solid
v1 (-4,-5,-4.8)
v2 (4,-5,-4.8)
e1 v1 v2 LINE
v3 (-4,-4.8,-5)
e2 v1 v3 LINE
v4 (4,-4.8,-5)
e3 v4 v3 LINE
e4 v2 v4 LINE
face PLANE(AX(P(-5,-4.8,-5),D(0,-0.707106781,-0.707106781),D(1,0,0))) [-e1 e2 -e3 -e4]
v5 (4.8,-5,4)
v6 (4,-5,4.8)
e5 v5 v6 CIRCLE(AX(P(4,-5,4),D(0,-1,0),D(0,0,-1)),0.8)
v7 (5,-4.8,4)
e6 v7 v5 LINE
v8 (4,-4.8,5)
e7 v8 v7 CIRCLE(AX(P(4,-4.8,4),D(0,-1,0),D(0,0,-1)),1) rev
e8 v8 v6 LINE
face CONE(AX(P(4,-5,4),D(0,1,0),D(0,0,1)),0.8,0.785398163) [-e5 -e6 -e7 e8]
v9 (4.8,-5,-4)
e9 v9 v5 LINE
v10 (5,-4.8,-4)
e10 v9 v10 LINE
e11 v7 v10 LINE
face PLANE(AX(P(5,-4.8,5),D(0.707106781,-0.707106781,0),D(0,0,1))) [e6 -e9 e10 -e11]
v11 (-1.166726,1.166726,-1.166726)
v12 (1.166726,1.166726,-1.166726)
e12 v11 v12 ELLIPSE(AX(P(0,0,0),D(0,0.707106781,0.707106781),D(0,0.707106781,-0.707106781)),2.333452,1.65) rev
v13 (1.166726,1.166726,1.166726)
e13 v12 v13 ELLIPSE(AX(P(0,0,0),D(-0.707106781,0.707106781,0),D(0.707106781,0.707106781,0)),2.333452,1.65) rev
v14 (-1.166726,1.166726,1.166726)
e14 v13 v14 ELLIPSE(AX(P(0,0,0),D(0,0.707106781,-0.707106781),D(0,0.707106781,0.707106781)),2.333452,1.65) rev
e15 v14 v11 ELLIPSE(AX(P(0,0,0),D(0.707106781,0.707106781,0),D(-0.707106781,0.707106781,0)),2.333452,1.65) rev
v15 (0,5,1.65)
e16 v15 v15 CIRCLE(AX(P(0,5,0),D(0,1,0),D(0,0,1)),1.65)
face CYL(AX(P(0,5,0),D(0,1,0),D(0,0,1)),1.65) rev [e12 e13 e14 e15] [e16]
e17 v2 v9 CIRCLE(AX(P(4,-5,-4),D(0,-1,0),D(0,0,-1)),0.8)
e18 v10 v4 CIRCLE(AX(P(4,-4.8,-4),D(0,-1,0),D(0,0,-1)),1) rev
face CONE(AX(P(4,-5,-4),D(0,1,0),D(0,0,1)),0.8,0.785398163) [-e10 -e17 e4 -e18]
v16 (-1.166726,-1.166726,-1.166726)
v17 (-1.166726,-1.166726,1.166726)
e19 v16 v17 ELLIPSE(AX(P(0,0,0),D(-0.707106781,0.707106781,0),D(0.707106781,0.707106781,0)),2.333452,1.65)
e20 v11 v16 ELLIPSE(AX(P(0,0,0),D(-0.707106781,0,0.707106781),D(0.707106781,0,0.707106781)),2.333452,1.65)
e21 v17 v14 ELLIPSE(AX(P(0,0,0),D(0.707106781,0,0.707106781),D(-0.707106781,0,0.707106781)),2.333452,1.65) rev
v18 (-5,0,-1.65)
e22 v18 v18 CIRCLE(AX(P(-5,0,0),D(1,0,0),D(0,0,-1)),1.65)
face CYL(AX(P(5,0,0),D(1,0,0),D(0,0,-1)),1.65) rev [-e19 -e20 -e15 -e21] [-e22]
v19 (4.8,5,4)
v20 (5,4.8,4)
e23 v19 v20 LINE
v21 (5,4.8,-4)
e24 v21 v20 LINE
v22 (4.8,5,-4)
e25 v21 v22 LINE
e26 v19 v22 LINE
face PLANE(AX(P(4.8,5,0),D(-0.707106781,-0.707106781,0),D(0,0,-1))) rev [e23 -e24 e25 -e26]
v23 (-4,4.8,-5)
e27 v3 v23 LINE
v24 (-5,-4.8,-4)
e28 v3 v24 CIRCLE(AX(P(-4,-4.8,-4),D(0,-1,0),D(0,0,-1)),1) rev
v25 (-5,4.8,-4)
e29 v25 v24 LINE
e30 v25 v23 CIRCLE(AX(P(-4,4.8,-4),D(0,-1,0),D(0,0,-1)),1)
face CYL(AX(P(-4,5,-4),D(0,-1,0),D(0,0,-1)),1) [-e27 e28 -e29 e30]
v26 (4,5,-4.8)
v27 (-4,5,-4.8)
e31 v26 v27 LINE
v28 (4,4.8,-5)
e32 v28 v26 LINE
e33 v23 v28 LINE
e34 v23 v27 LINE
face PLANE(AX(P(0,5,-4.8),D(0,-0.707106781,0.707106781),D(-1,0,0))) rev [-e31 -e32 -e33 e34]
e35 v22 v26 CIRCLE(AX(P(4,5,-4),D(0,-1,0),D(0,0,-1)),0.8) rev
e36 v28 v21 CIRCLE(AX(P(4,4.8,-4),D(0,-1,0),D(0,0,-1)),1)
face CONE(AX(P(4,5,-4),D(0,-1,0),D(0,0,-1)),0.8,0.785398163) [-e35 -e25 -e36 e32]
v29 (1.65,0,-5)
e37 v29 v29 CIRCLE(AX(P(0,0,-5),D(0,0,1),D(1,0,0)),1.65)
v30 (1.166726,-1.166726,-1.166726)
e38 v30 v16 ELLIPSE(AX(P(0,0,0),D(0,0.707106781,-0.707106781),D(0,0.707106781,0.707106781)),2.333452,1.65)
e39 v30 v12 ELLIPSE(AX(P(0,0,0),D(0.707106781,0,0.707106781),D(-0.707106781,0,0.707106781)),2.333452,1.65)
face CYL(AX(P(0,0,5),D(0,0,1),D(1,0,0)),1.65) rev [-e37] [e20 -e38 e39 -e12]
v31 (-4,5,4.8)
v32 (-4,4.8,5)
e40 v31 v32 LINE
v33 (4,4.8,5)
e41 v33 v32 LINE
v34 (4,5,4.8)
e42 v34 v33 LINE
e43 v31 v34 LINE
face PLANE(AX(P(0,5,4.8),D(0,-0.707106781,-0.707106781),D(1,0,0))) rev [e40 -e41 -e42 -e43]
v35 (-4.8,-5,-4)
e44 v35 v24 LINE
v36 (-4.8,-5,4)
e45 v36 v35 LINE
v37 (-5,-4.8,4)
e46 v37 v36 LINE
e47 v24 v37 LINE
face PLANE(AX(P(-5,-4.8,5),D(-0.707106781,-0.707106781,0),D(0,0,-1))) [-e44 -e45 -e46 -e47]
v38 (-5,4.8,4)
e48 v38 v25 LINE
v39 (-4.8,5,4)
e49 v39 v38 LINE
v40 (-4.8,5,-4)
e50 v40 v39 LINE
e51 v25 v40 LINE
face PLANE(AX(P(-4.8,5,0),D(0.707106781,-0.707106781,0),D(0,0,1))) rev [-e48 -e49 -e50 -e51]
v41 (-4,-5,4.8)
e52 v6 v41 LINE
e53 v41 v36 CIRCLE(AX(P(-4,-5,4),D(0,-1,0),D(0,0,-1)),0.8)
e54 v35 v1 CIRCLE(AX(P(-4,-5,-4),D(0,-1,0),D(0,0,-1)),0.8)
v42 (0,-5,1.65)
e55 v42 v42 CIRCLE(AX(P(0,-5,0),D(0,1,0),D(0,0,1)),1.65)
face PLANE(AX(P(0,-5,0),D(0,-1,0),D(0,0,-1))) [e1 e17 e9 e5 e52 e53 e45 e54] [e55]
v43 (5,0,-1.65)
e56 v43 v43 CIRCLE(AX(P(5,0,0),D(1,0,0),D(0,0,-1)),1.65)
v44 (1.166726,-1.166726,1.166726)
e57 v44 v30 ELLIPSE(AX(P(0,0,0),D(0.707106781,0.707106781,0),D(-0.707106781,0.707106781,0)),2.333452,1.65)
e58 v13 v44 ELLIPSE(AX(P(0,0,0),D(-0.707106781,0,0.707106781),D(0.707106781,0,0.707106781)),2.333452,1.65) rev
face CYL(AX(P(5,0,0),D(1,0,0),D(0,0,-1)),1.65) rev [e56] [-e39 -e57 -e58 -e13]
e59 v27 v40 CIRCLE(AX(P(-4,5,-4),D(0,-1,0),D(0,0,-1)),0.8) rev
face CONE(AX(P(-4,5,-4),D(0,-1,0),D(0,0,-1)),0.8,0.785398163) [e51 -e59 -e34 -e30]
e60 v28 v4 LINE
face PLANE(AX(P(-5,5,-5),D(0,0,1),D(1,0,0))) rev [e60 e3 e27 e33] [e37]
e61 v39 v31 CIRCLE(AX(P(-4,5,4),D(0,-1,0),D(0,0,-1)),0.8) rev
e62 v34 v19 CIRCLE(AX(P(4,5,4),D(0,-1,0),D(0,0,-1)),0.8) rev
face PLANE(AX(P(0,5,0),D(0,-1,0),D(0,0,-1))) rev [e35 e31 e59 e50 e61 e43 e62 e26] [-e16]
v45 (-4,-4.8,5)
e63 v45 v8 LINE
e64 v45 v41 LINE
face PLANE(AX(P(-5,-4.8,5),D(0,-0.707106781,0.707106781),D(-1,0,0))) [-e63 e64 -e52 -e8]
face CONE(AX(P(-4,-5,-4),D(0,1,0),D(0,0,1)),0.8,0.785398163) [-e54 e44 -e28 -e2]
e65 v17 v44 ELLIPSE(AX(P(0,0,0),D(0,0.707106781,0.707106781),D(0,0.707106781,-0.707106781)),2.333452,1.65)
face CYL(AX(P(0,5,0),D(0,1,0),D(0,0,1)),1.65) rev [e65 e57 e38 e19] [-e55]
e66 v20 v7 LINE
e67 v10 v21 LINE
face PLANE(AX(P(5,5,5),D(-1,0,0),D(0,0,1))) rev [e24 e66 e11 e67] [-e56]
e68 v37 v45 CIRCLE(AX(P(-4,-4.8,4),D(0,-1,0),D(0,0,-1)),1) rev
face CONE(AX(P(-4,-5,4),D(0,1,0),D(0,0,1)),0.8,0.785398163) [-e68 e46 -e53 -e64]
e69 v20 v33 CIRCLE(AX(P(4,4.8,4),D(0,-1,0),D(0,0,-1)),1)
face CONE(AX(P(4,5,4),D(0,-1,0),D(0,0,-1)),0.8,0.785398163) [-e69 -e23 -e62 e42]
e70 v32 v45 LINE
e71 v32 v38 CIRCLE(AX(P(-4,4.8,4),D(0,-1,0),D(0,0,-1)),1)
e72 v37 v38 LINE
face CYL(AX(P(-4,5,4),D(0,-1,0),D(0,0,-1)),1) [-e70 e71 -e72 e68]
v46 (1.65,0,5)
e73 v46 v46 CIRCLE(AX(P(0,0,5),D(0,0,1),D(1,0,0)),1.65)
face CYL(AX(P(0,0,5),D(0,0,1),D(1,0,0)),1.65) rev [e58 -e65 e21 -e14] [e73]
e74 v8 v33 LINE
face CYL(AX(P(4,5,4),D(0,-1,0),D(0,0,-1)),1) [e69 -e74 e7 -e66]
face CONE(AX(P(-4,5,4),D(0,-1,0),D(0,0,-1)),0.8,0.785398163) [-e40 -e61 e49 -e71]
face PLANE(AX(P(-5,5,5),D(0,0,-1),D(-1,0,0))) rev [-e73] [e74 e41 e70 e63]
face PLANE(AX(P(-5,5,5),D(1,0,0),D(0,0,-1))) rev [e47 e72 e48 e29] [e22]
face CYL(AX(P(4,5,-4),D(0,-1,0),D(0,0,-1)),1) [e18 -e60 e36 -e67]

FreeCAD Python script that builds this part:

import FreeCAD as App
import Part
import Sketcher
from FreeCAD import Vector


def edges_at(feature, points):
    """Names of the edges that pass closest to the given points."""
    edges = feature.Shape.Edges
    near = lambda p: min(range(len(edges)), key=lambda i: edges[i].distToShape(Part.Vertex(*p))[0])
    return sorted({f"Edge{near(p) + 1}" for p in points})


def add_polygon(sketch, points):
    """Adds a closed chain of lines whose ends are joined by coincident constraints."""
    first, n = sketch.GeometryCount, len(points)
    for a, b in zip(points, points[1:] + points[:1]):
        sketch.addGeometry(Part.LineSegment(App.Vector(*a, 0), App.Vector(*b, 0)), False)
    for i in range(n):
        sketch.addConstraint(Sketcher.Constraint("Coincident", first + i, 2, first + (i + 1) % n, 1))

doc = App.newDocument("Part")
body = doc.addObject("PartDesign::Body", "Body")

sketch1 = doc.addObject("Sketcher::SketchObject", "Sketch")
body.addObject(sketch1)
sketch1.AttachmentSupport = (doc.XZ_Plane, [""])
sketch1.MapMode = "FlatFace"
add_polygon(sketch1, [(-5, -5), (-5, 5), (5, 5), (5, -5)])
sketch1.addConstraint([
    Sketcher.Constraint("Vertical", 0),
    Sketcher.Constraint("Horizontal", 1),
    Sketcher.Constraint("Vertical", 2),
    Sketcher.Constraint("Horizontal", 3),
    Sketcher.Constraint("Symmetric", 0, 2, 2, 2, -1, 1),
    Sketcher.Constraint("Equal", 3, 0),
    Sketcher.Constraint("DistanceX", 1, 1, 1, 2, 10.0),
])
pad1 = doc.addObject("PartDesign::Pad", "Pad")
body.addObject(pad1)
pad1.Profile = sketch1
pad1.Length = 10
pad1.Midplane = True

sketch2 = doc.addObject("Sketcher::SketchObject", "Sketch001")
body.addObject(sketch2)
sketch2.AttachmentSupport = (doc.XZ_Plane, [""])
sketch2.MapMode = "FlatFace"
sketch2.AttachmentOffset = App.Placement(Vector(0, 0, -5), App.Rotation())
sketch2.addGeometry(Part.Circle(Vector(0, 0, 0), Vector(0, 0, 1), 1.65), False)
sketch2.addConstraint([
    Sketcher.Constraint("Coincident", 0, 3, -1, 1),
    Sketcher.Constraint("Diameter", 0, 3.3),
])
doc.recompute()
hole = doc.addObject("PartDesign::Hole", "Hole")
body.addObject(hole)
hole.Profile = sketch2
hole.ThreadType = "None"
hole.Diameter = 3.3
hole.DepthType = "ThroughAll"
hole.Reversed = True

sketch3 = doc.addObject("Sketcher::SketchObject", "Sketch002")
body.addObject(sketch3)
sketch3.AttachmentSupport = (doc.XY_Plane, [""])
sketch3.MapMode = "FlatFace"
sketch3.AttachmentOffset = App.Placement(Vector(0, 0, 5), App.Rotation())
sketch3.addGeometry(Part.Circle(Vector(0, 0, 0), Vector(0, 0, 1), 1.65), False)
sketch3.addConstraint([
    Sketcher.Constraint("Coincident", 0, 3, -1, 1),
    Sketcher.Constraint("Diameter", 0, 3.3),
])
doc.recompute()
hole2 = doc.addObject("PartDesign::Hole", "Hole001")
body.addObject(hole2)
hole2.Profile = sketch3
hole2.ThreadType = "None"
hole2.Diameter = 3.3
hole2.DepthType = "ThroughAll"

sketch4 = doc.addObject("Sketcher::SketchObject", "Sketch003")
body.addObject(sketch4)
sketch4.AttachmentSupport = (doc.YZ_Plane, [""])
sketch4.MapMode = "FlatFace"
sketch4.AttachmentOffset = App.Placement(Vector(0, 0, 5), App.Rotation())
sketch4.addGeometry(Part.Circle(Vector(0, 0, 0), Vector(0, 0, 1), 1.65), False)
sketch4.addConstraint([
    Sketcher.Constraint("Coincident", 0, 3, -1, 1),
    Sketcher.Constraint("Diameter", 0, 3.3),
])
doc.recompute()
hole3 = doc.addObject("PartDesign::Hole", "Hole002")
body.addObject(hole3)
hole3.Profile = sketch4
hole3.ThreadType = "None"
hole3.Diameter = 3.3
hole3.DepthType = "ThroughAll"
doc.recompute()

fillet = doc.addObject("PartDesign::Fillet", "Fillet")
body.addObject(fillet)
fillet.Base = (hole3, edges_at(hole3, [
    (5, 0, 5),
    (-5, 0, 5),
    (-5, 0, -5),
    (5, 0, -5),
]))
fillet.Radius = 1
doc.recompute()

chamfer = doc.addObject("PartDesign::Chamfer", "Chamfer")
body.addObject(chamfer)
chamfer.Base = (fillet, edges_at(fillet, [
    (0, -5, -5),
    (0, 5, -5),
    (5, -5, 0),
    (0, -5, 5),
    (-5, -5, 0),
    (-4.707, -5, -4.707),
    (-4.707, -5, 4.707),
    (4.707, -5, 4.707),
    (4.707, -5, -4.707),
    (5, 5, 0),
    (-5, 5, 0),
    (0, 5, 5),
    (-4.707, 5, -4.707),
    (-4.707, 5, 4.707),
    (4.707, 5, 4.707),
    (4.707, 5, -4.707),
]))
chamfer.Size = 0.2

doc.recompute()
